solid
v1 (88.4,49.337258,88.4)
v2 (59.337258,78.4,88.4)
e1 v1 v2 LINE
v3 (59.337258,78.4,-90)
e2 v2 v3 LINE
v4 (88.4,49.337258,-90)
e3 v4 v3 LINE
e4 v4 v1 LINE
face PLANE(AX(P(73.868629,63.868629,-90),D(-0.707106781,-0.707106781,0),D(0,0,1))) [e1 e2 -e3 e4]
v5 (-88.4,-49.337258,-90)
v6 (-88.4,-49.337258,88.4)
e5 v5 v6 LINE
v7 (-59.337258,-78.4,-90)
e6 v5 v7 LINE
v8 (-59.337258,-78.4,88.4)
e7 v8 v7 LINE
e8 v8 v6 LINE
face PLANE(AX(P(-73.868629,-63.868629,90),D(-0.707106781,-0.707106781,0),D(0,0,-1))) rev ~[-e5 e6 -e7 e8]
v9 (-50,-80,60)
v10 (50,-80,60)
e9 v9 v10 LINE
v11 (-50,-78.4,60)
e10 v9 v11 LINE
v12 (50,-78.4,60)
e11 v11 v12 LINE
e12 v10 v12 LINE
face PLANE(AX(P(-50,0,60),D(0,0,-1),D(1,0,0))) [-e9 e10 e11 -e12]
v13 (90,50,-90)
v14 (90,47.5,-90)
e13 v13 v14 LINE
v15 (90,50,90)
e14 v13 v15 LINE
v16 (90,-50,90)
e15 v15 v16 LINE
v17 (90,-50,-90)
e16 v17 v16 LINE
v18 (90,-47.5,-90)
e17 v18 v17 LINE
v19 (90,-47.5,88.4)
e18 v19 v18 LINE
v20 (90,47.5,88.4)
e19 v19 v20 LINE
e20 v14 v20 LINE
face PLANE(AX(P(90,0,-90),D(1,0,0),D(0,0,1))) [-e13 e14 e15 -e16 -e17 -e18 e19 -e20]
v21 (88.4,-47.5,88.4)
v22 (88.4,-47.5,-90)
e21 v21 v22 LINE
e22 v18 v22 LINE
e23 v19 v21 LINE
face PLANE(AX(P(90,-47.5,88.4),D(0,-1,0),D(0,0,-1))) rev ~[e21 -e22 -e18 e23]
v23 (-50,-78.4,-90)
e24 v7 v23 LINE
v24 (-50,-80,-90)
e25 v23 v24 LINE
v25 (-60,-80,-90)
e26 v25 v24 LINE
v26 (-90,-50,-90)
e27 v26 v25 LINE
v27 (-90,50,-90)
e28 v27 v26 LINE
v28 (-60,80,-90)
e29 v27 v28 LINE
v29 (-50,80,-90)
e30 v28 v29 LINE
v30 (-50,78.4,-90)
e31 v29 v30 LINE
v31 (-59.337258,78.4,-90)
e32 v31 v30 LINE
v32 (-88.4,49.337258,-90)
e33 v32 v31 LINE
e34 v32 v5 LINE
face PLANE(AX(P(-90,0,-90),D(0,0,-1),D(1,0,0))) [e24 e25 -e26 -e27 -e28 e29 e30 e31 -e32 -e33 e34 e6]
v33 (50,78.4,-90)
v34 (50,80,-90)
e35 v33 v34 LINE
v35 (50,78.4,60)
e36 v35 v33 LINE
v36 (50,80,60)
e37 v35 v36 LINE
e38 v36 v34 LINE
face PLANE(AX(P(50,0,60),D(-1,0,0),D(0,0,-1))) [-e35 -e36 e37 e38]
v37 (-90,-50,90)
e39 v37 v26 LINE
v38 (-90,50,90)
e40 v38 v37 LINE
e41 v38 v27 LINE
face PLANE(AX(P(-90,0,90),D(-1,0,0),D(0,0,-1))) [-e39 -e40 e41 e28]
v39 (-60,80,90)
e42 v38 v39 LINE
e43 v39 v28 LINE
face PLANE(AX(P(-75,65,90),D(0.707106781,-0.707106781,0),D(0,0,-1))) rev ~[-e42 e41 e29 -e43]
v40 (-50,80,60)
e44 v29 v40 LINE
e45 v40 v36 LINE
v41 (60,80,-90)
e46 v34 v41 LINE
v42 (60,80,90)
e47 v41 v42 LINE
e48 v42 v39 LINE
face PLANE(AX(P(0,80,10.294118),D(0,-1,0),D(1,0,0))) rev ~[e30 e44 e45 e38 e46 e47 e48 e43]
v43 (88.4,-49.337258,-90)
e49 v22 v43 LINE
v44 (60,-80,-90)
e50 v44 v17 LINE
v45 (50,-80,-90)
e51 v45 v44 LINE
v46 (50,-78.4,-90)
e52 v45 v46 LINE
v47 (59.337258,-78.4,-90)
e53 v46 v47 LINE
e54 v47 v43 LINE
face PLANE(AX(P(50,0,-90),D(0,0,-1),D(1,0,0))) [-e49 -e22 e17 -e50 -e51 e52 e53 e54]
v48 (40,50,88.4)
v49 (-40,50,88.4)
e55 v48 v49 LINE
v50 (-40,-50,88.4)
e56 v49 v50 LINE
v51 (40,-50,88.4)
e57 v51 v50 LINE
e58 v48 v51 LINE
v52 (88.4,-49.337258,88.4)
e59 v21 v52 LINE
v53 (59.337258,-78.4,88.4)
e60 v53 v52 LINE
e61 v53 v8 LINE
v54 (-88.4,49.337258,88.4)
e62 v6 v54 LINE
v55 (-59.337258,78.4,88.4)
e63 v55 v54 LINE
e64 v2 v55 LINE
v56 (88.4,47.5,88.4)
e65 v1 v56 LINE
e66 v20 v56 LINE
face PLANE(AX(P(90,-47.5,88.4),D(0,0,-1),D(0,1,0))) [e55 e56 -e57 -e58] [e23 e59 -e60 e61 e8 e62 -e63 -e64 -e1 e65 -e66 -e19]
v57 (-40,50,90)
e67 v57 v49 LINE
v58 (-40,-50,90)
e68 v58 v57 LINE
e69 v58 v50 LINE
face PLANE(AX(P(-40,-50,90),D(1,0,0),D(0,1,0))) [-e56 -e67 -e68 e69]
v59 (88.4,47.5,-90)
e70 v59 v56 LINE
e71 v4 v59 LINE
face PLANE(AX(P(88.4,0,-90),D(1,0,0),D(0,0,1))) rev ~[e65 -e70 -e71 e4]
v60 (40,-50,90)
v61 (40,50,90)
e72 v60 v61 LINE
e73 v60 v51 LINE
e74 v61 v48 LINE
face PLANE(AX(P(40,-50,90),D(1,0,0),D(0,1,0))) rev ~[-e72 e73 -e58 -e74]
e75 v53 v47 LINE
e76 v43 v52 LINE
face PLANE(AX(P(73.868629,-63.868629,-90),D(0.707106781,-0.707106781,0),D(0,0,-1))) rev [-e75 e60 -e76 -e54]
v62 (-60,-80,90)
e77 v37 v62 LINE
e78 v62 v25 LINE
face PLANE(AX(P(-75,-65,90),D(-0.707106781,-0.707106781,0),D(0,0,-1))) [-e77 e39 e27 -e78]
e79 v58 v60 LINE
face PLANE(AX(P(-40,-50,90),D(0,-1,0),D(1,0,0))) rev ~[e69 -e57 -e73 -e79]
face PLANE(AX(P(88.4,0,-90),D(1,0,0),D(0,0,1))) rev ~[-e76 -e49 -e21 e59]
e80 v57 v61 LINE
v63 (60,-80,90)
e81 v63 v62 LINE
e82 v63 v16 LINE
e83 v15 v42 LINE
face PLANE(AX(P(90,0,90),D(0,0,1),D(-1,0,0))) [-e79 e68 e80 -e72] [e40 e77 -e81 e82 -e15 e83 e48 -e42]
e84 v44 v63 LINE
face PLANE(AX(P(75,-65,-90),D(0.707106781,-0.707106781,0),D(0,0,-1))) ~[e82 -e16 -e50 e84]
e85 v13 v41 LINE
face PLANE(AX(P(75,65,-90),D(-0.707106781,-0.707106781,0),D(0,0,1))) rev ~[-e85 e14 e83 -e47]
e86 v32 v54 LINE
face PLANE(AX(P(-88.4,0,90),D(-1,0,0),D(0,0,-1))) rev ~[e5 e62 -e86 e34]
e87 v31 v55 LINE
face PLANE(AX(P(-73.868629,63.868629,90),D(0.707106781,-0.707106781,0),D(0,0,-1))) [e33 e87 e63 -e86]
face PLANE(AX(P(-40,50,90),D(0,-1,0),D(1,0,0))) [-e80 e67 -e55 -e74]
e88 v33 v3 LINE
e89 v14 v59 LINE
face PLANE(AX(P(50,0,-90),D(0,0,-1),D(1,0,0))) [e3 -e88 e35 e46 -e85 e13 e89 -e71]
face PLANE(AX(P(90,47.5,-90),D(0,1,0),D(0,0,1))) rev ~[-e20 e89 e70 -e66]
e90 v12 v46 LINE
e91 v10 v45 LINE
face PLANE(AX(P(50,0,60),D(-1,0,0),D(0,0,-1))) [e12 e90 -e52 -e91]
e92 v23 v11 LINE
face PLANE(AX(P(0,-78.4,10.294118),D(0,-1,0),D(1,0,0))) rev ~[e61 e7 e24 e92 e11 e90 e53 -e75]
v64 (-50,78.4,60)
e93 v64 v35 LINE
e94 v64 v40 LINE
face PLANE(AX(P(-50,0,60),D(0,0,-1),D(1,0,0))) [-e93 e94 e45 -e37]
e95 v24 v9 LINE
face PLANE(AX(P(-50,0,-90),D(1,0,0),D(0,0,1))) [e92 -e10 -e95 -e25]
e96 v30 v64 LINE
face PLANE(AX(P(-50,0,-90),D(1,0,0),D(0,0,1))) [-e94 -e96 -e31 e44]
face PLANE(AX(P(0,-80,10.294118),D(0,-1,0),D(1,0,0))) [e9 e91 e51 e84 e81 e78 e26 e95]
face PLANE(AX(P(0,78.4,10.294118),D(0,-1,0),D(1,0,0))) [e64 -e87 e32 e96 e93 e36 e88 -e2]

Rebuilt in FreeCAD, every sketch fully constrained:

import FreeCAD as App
import Part
import Sketcher

V = App.Vector
Q = App.Units.Quantity


def edges_at(feature, points):
    """Names of the edges that pass closest to the given points."""
    edges = feature.Shape.Edges
    near = lambda p: min(range(len(edges)), key=lambda i: edges[i].distToShape(Part.Vertex(*p))[0])
    return sorted({f"Edge{near(p) + 1}" for p in points})


def faces_at(feature, points):
    """Names of the faces that lie closest to the given points."""
    faces = feature.Shape.Faces
    near = lambda p: min(range(len(faces)), key=lambda i: faces[i].distToShape(Part.Vertex(*p))[0])
    return sorted({f"Face{near(p) + 1}" for p in points})

doc = App.newDocument("Part")
body = doc.addObject("PartDesign::Body", "Body")

# Sketch on XZ plane
sketch1 = body.newObject("Sketcher::SketchObject", "Sketch")
sketch1.AttachmentSupport = (doc.getObject("XZ_Plane"), [""])
sketch1.MapMode = "FlatFace"
sketch1.addGeometry([
    Part.LineSegment(V(50, -90, 0), V(90, -90, 0)),  # 0
    Part.LineSegment(V(90, -90, 0), V(90, 90, 0)),  # 1
    Part.LineSegment(V(90, 90, 0), V(-90, 90, 0)),  # 2
    Part.LineSegment(V(-90, 90, 0), V(-90, -90, 0)),  # 3
    Part.LineSegment(V(-90, -90, 0), V(-50, -90, 0)),  # 4
    Part.LineSegment(V(-50, -90, 0), V(-50, 60, 0)),  # 5
    Part.LineSegment(V(-50, 60, 0), V(50, 60, 0)),  # 6
    Part.LineSegment(V(50, 60, 0), V(50, -90, 0)),  # 7
], False)
sketch1.addConstraint([
    Sketcher.Constraint("Coincident", 0, 2, 1, 1),
    Sketcher.Constraint("Coincident", 1, 2, 2, 1),
    Sketcher.Constraint("Coincident", 2, 2, 3, 1),
    Sketcher.Constraint("Coincident", 3, 2, 4, 1),
    Sketcher.Constraint("Coincident", 4, 2, 5, 1),
    Sketcher.Constraint("Coincident", 5, 2, 6, 1),
    Sketcher.Constraint("Coincident", 6, 2, 7, 1),
    Sketcher.Constraint("Coincident", 7, 2, 0, 1),
    Sketcher.Constraint("Horizontal", 0),
    Sketcher.Constraint("Vertical", 1),
    Sketcher.Constraint("Horizontal", 2),
    Sketcher.Constraint("Vertical", 3),
    Sketcher.Constraint("Horizontal", 4),
    Sketcher.Constraint("Vertical", 5),
    Sketcher.Constraint("Horizontal", 6),
    Sketcher.Constraint("Vertical", 7),
    Sketcher.Constraint("Symmetric", 0, 2, 2, 2, -1, 1),
    Sketcher.Constraint("Symmetric", 4, 2, 7, 2, -2),
    Sketcher.Constraint("Equal", 2, 1),
    Sketcher.Constraint("DistanceX", 0, 1, 0, 2, Q("40 mm")),
    Sketcher.Constraint("DistanceX", 2, 2, 2, 1, Q("180 mm")),
    Sketcher.Constraint("DistanceY", 5, 1, 5, 2, Q("150 mm")),
])
pad1 = body.newObject("PartDesign::Pad", "Pad")
pad1.Profile = sketch1
pad1.Length = 160
pad1.Midplane = True
doc.recompute()

chamfer = body.newObject("PartDesign::Chamfer", "Chamfer")
chamfer.Base = (pad1, edges_at(pad1, [
    (-90, -80, 0),
    (90, -80, 0),
    (90, 80, 0),
    (-90, 80, 0),
]))
chamfer.Size = 30
doc.recompute()

thickness = body.newObject("PartDesign::Thickness", "Thickness")
thickness.Base = (chamfer, faces_at(chamfer, [
    (70, 0, -90),
    (-70, 0, -90),
    (0, 0, 60),
    (50, 0, -15),
    (-50, 0, -15),
]))
thickness.Value = 1.6
thickness.Reversed = True
thickness.Join = "Arc"

# Sketch on YZ plane
sketch2 = body.newObject("Sketcher::SketchObject", "Sketch001")
sketch2.AttachmentSupport = (doc.getObject("YZ_Plane"), [""])
sketch2.MapMode = "FlatFace"
sketch2.AttachmentOffset = App.Placement(V(0, 0, 90), App.Rotation())
sketch2.addGeometry([
    Part.LineSegment(V(-47.5, -90, 0), V(47.5, -90, 0)),
    Part.LineSegment(V(47.5, -90, 0), V(47.5, 88.4, 0)),
    Part.LineSegment(V(47.5, 88.4, 0), V(-47.5, 88.4, 0)),
    Part.LineSegment(V(-47.5, 88.4, 0), V(-47.5, -90, 0)),
], False)
sketch2.addConstraint([
    Sketcher.Constraint("Coincident", 0, 2, 1, 1),
    Sketcher.Constraint("Coincident", 1, 2, 2, 1),
    Sketcher.Constraint("Coincident", 2, 2, 3, 1),
    Sketcher.Constraint("Coincident", 3, 2, 0, 1),
    Sketcher.Constraint("Horizontal", 0),
    Sketcher.Constraint("Vertical", 1),
    Sketcher.Constraint("Horizontal", 2),
    Sketcher.Constraint("Vertical", 3),
    Sketcher.Constraint("DistanceX", 0, 1, 0, 2, Q("95 mm")),
    Sketcher.Constraint("DistanceY", 1, 1, 1, 2, Q("178.4 mm")),
    Sketcher.Constraint("DistanceY", 0, 2, -1, 1, Q("90 mm")),
    Sketcher.Constraint("DistanceX", -1, 1, 0, 2, Q("47.5 mm")),
])
pocket1 = body.newObject("PartDesign::Pocket", "Pocket")
pocket1.Profile = sketch2
pocket1.Length = 25

# Sketch on XY plane
sketch3 = body.newObject("Sketcher::SketchObject", "Sketch002")
sketch3.AttachmentSupport = (doc.getObject("XY_Plane"), [""])
sketch3.MapMode = "FlatFace"
sketch3.AttachmentOffset = App.Placement(V(0, 0, 90), App.Rotation())
sketch3.addGeometry([
    Part.LineSegment(V(-40, 50, 0), V(-40, -50, 0)),
    Part.LineSegment(V(-40, -50, 0), V(40, -50, 0)),
    Part.LineSegment(V(40, -50, 0), V(40, 50, 0)),
    Part.LineSegment(V(40, 50, 0), V(-40, 50, 0)),
], False)
sketch3.addConstraint([
    Sketcher.Constraint("Coincident", 0, 2, 1, 1),
    Sketcher.Constraint("Coincident", 1, 2, 2, 1),
    Sketcher.Constraint("Coincident", 2, 2, 3, 1),
    Sketcher.Constraint("Coincident", 3, 2, 0, 1),
    Sketcher.Constraint("Vertical", 0),
    Sketcher.Constraint("Horizontal", 1),
    Sketcher.Constraint("Vertical", 2),
    Sketcher.Constraint("Horizontal", 3),
    Sketcher.Constraint("Symmetric", 0, 2, 2, 2, -1, 1),
    Sketcher.Constraint("DistanceX", 1, 1, 1, 2, Q("80 mm")),
    Sketcher.Constraint("DistanceY", 0, 2, 0, 1, Q("100 mm")),
])
pocket2 = body.newObject("PartDesign::Pocket", "Pocket001")
pocket2.Profile = sketch3
pocket2.Length = 25

doc.recompute()
